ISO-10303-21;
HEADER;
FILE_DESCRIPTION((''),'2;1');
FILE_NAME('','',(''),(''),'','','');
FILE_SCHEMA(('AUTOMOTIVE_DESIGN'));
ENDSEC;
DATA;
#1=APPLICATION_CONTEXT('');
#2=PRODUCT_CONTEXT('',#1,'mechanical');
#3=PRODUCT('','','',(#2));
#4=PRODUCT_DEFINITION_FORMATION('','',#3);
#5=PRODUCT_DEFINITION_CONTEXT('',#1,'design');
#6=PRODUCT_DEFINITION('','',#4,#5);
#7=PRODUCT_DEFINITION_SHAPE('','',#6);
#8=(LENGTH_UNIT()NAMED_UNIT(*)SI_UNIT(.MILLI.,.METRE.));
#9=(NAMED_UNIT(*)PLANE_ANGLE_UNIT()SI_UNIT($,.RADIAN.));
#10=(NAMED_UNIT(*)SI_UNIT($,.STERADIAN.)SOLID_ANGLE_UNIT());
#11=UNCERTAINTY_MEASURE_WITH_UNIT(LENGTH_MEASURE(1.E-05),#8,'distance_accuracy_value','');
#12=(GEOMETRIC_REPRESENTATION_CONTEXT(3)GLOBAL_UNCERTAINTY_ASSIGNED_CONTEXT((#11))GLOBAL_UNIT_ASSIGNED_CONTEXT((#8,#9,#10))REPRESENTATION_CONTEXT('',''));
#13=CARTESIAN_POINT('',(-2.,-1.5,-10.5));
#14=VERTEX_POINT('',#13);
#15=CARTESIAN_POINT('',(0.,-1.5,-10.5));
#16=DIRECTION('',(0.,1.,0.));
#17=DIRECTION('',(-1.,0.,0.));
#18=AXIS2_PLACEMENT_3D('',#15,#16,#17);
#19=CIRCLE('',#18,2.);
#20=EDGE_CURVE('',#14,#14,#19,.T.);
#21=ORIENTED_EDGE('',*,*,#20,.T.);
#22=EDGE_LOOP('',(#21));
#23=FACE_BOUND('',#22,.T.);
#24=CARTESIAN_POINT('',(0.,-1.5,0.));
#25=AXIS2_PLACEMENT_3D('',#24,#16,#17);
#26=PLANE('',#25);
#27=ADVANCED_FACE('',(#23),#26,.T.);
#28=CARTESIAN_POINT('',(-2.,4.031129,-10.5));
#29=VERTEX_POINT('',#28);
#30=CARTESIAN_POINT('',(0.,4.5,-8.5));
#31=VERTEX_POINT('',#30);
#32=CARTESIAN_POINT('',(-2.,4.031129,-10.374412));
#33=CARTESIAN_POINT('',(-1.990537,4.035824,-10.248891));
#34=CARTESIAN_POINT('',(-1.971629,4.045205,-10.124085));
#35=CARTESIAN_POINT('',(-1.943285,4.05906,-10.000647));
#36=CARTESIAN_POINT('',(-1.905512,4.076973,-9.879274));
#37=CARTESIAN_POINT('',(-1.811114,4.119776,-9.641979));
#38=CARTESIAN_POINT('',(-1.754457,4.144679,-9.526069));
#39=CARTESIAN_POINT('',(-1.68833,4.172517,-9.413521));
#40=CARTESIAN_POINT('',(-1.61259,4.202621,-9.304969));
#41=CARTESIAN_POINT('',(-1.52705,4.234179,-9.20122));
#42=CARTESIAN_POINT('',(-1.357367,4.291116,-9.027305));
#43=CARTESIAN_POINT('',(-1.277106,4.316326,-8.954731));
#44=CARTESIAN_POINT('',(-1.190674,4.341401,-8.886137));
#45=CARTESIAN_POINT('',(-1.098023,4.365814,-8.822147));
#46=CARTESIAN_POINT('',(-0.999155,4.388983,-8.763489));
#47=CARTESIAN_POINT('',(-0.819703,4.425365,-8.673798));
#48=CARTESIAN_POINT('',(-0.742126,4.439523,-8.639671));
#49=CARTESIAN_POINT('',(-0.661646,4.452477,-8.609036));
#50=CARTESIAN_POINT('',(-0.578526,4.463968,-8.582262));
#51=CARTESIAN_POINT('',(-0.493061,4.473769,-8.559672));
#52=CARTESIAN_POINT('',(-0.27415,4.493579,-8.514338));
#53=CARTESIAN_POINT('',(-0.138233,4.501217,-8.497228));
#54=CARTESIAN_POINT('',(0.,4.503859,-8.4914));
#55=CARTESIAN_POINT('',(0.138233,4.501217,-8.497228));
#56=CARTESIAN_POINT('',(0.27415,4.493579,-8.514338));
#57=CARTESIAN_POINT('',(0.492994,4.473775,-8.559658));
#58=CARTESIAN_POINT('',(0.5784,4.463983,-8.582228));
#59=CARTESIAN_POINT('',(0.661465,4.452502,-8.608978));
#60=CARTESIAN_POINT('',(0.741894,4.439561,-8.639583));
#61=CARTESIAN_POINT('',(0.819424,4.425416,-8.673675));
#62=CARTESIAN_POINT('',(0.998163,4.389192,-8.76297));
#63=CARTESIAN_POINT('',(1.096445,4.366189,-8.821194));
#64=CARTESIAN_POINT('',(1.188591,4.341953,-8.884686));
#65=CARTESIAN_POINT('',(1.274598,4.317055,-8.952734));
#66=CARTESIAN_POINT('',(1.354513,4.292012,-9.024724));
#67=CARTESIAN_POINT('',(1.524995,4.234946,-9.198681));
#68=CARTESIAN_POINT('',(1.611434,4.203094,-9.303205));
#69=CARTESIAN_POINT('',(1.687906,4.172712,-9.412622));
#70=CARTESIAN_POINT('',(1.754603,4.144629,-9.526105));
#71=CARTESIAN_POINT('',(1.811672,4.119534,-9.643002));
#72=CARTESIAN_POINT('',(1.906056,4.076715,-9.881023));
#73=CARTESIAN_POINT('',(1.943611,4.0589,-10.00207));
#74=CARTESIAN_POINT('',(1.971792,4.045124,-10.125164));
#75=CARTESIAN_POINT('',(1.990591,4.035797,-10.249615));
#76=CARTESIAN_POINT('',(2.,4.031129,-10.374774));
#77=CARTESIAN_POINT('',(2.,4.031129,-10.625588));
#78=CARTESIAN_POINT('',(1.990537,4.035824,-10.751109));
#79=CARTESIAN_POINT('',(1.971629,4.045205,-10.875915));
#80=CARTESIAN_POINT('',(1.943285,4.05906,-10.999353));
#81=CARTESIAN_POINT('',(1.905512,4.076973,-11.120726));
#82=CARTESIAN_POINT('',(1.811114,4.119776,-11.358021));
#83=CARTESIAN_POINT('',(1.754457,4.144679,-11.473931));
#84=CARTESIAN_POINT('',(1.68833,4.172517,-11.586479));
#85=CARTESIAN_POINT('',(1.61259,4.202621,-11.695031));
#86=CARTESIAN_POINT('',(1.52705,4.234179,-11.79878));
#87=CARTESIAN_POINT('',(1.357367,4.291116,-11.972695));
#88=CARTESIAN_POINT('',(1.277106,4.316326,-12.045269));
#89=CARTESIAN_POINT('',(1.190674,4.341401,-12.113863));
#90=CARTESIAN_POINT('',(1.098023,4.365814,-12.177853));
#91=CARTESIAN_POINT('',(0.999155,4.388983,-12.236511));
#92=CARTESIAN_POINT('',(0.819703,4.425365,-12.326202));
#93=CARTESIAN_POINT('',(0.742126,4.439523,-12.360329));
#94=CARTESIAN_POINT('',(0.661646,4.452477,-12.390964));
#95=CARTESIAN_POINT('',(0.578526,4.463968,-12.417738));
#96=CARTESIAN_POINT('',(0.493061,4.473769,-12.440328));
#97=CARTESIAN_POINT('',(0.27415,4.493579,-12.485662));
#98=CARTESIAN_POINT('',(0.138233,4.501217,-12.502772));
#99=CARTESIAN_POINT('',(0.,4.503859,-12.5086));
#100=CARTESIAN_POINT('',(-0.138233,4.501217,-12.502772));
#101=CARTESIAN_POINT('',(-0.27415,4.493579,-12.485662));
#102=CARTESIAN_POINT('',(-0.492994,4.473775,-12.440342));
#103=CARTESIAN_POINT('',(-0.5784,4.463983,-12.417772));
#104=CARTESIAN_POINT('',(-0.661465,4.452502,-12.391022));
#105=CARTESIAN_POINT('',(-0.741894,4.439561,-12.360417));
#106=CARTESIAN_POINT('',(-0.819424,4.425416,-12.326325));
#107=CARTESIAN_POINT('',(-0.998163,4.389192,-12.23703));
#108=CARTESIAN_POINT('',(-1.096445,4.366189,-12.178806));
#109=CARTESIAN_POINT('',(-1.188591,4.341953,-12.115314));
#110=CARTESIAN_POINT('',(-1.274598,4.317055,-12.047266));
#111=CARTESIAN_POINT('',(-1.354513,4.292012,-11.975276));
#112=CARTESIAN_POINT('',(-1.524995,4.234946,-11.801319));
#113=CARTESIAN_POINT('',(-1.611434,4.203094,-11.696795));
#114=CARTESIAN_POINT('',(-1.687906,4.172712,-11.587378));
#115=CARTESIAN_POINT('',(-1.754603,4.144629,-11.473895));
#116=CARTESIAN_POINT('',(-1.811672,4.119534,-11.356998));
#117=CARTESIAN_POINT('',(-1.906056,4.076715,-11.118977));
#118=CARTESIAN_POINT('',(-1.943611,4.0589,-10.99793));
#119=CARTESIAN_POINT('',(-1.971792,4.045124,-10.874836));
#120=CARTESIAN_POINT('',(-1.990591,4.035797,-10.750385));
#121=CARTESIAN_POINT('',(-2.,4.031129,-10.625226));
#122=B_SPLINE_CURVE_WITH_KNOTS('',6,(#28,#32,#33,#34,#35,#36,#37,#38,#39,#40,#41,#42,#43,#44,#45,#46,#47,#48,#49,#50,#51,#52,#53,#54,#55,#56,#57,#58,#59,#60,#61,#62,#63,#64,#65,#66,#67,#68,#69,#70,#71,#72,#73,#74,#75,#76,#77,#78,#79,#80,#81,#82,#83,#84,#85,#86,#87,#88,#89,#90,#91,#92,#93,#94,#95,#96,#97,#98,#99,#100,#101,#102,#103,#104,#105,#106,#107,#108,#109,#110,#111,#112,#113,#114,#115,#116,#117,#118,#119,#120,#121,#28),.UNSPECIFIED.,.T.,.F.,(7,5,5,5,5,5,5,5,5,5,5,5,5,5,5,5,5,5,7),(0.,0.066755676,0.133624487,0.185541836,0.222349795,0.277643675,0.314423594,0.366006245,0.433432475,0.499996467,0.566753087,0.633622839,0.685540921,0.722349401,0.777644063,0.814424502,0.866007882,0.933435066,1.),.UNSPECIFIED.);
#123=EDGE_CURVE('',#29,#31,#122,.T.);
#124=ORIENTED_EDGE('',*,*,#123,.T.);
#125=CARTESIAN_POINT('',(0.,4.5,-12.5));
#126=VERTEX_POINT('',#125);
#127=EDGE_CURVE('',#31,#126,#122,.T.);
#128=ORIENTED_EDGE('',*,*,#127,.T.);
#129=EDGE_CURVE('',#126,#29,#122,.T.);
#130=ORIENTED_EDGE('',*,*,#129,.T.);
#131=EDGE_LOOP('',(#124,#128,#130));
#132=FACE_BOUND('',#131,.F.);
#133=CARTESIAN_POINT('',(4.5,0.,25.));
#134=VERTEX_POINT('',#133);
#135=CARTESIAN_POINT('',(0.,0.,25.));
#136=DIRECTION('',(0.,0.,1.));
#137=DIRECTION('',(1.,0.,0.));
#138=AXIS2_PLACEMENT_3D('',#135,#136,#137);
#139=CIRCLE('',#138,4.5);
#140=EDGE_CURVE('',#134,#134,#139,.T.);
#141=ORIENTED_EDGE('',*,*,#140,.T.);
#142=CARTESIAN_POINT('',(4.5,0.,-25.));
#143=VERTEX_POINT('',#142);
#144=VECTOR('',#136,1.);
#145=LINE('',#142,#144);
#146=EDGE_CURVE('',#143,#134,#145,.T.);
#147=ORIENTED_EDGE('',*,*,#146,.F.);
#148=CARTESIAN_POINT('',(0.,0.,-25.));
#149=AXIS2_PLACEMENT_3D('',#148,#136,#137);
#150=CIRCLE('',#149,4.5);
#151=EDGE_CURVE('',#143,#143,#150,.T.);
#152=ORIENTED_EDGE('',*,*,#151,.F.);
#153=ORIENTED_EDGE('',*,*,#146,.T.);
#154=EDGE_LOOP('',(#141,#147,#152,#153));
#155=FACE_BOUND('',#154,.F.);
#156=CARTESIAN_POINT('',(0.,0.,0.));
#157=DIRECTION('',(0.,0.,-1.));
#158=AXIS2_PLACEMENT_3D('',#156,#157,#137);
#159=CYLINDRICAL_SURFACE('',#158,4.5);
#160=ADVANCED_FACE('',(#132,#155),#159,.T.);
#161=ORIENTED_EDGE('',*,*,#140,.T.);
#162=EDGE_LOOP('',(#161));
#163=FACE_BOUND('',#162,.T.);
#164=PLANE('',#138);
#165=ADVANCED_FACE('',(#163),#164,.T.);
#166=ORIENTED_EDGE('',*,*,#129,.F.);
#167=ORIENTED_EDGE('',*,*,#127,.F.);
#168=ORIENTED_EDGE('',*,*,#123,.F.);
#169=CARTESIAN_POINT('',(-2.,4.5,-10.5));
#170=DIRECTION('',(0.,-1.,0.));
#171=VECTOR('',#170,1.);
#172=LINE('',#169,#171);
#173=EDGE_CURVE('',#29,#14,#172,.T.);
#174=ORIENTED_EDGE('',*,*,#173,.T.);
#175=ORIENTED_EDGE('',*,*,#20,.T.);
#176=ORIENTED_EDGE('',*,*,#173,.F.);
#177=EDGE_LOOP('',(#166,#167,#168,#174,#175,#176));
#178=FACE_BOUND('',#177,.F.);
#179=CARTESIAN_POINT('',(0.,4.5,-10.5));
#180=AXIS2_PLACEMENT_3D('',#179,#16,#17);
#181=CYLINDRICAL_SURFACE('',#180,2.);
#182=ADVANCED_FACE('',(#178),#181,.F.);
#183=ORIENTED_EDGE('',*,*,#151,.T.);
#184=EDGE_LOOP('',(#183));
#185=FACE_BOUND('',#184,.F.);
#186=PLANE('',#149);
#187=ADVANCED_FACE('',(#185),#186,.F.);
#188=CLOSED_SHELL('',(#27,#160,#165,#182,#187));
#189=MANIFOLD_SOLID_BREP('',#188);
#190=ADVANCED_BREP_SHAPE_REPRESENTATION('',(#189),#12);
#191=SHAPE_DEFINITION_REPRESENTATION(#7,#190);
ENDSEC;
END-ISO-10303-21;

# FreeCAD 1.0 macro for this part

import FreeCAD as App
import Part
import Sketcher

V = App.Vector
Q = App.Units.Quantity

doc = App.newDocument("Part")
params = doc.addObject("Spreadsheet::Sheet", "Params")
for row, (alias, value) in enumerate([
    ("sketch1_diameter", "9 mm"),
    ("pad1_length", "50 mm"),
    ("sketch2_diameter", "4 mm"),
    ("pocket1_length", "6 mm"),
], start=1):
    params.set(f"A{row}", alias)
    params.set(f"B{row}", "=" + value)
    params.setAlias(f"B{row}", alias)

body = doc.addObject("PartDesign::Body", "Body")

sketch1 = body.newObject("Sketcher::SketchObject", "Sketch")
sketch1.AttachmentSupport = (doc.getObject("XY_Plane"), [""])
sketch1.MapMode = "FlatFace"
sketch1.addGeometry(Part.Circle(V(0, 0, 0), V(0, 0, 1), 4.5), False)
sketch1.addConstraint([
    Sketcher.Constraint("Coincident", 0, 3, -1, 1),
    Sketcher.Constraint("Diameter", 0, Q("9 mm")),
])
sketch1.setExpression("Constraints[1]", "Params.sketch1_diameter")
pad1 = body.newObject("PartDesign::Pad", "Pad")
pad1.Profile = sketch1
pad1.setExpression("Length", "Params.pad1_length")
pad1.Midplane = True

sketch2 = body.newObject("Sketcher::SketchObject", "Sketch001")
sketch2.AttachmentSupport = (doc.getObject("XZ_Plane"), [""])
sketch2.MapMode = "FlatFace"
sketch2.AttachmentOffset = App.Placement(V(0, 0, -4.5), App.Rotation())
sketch2.addGeometry(Part.Circle(V(0, -10.5, 0), V(0, 0, 1), 2), False)
sketch2.addConstraint([
    Sketcher.Constraint("PointOnObject", 0, 3, -2),
    Sketcher.Constraint("Diameter", 0, Q("4 mm")),
    Sketcher.Constraint("DistanceY", 0, 3, -1, 1, Q("10.5 mm")),
])
sketch2.setExpression("Constraints[1]", "Params.sketch2_diameter")
pocket1 = body.newObject("PartDesign::Pocket", "Pocket")
pocket1.Profile = sketch2
pocket1.setExpression("Length", "Params.pocket1_length")
pocket1.Reversed = True

doc.recompute()
